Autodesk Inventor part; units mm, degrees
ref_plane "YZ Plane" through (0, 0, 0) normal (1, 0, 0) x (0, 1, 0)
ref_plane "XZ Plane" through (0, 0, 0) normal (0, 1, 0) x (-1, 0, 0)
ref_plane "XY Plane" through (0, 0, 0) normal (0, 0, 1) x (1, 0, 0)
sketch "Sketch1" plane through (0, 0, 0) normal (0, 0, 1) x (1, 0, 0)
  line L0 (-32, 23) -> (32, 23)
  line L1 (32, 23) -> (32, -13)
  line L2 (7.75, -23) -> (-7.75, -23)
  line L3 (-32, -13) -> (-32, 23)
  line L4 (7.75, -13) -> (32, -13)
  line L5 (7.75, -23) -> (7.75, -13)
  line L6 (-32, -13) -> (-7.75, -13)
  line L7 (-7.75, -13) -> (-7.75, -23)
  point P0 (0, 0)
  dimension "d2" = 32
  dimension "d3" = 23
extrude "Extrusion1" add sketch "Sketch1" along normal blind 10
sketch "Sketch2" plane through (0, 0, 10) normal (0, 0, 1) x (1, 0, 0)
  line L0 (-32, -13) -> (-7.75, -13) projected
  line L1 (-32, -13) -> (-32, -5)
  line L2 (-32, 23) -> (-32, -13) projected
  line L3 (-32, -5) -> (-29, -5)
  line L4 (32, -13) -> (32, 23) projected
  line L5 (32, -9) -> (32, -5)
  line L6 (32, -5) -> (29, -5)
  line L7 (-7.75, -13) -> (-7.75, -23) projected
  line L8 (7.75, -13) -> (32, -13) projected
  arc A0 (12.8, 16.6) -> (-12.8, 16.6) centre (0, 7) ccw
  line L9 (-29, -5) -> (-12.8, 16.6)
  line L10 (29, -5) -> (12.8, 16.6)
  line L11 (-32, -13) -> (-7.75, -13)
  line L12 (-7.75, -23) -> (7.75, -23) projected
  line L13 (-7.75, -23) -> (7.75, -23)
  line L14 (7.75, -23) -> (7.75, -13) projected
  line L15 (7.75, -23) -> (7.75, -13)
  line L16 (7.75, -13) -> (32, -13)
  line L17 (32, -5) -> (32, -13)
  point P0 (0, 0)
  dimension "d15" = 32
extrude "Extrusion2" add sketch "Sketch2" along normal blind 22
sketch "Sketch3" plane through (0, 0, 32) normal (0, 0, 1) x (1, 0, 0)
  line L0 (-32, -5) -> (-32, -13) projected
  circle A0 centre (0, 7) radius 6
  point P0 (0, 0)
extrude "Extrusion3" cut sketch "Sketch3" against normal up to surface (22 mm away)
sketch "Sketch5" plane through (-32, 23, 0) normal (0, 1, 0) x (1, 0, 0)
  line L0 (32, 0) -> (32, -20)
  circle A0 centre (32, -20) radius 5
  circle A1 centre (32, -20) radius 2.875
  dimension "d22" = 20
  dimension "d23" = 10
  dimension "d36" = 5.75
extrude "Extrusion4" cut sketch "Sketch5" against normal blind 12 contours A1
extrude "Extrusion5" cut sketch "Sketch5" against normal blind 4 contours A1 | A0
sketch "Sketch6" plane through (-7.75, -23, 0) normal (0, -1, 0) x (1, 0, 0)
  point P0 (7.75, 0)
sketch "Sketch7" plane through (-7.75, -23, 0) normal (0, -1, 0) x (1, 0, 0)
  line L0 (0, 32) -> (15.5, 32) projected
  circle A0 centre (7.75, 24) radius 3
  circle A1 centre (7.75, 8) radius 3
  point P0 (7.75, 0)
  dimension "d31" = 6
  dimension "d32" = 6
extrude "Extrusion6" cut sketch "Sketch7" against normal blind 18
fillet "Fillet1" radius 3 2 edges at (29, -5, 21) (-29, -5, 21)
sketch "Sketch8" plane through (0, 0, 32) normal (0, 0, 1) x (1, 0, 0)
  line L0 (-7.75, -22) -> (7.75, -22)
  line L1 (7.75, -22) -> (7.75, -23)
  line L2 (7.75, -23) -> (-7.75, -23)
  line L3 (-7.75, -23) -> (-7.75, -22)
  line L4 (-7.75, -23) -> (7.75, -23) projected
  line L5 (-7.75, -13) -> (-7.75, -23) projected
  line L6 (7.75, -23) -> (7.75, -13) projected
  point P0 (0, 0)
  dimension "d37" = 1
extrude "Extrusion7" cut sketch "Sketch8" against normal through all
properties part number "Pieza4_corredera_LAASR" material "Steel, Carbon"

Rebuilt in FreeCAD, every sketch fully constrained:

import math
import FreeCAD as App
import Part
import Sketcher

V = App.Vector


def edges_at(feature, points):
    """Names of the edges that pass closest to the given points."""
    edges = feature.Shape.Edges
    near = lambda p: min(range(len(edges)), key=lambda i: edges[i].distToShape(Part.Vertex(*p))[0])
    return sorted({f"Edge{near(p) + 1}" for p in points})

doc = App.newDocument("Part")
body = doc.addObject("PartDesign::Body", "Body")

# Sketch on XY plane
sketch1 = body.newObject("Sketcher::SketchObject", "Sketch")
sketch1.AttachmentSupport = (doc.getObject("XY_Plane"), [""])
sketch1.MapMode = "FlatFace"
sketch1.addGeometry(Part.LineSegment(V(32, 23, 0), V(-32, 23, 0)), False)
sketch1.addGeometry(Part.LineSegment(V(-32, 23, 0), V(-32, -13, 0)), False)
sketch1.addGeometry(Part.LineSegment(V(-32, -13, 0), V(-8, -13, 0)), False)
sketch1.addGeometry(Part.LineSegment(V(-8, -13, 0), V(-8, -23, 0)), False)
sketch1.addGeometry(Part.LineSegment(V(-8, -23, 0), V(8, -23, 0)), False)
sketch1.addGeometry(Part.LineSegment(V(8, -23, 0), V(8, -13, 0)), False)
sketch1.addGeometry(Part.LineSegment(V(8, -13, 0), V(32, -13, 0)), False)
sketch1.addGeometry(Part.LineSegment(V(32, -13, 0), V(32, 23, 0)), False)
sketch1.addConstraint(Sketcher.Constraint("Coincident", 0, 2, 1, 1))
sketch1.addConstraint(Sketcher.Constraint("Coincident", 1, 2, 2, 1))
sketch1.addConstraint(Sketcher.Constraint("Coincident", 2, 2, 3, 1))
sketch1.addConstraint(Sketcher.Constraint("Coincident", 3, 2, 4, 1))
sketch1.addConstraint(Sketcher.Constraint("Coincident", 4, 2, 5, 1))
sketch1.addConstraint(Sketcher.Constraint("Coincident", 5, 2, 6, 1))
sketch1.addConstraint(Sketcher.Constraint("Coincident", 6, 2, 7, 1))
sketch1.addConstraint(Sketcher.Constraint("Coincident", 7, 2, 0, 1))
sketch1.addConstraint(Sketcher.Constraint("Horizontal", 0))
sketch1.addConstraint(Sketcher.Constraint("Vertical", 1))
sketch1.addConstraint(Sketcher.Constraint("Horizontal", 2))
sketch1.addConstraint(Sketcher.Constraint("Vertical", 3))
sketch1.addConstraint(Sketcher.Constraint("Horizontal", 4))
sketch1.addConstraint(Sketcher.Constraint("Vertical", 5))
sketch1.addConstraint(Sketcher.Constraint("Horizontal", 6))
sketch1.addConstraint(Sketcher.Constraint("Vertical", 7))
sketch1.addConstraint(Sketcher.Constraint("Symmetric", 2, 2, 5, 2, -2))
sketch1.addConstraint(Sketcher.Constraint("Equal", 2, 6))
sketch1.addConstraint(Sketcher.Constraint("DistanceX", 0, 2, -1, 1, 32.0))
sketch1.addConstraint(Sketcher.Constraint("DistanceY", -1, 1, 0, 2, 23.0))
sketch1.addConstraint(Sketcher.Constraint("DistanceY", 3, 2, -1, 1, 23.0))
sketch1.addConstraint(Sketcher.Constraint("DistanceY", 1, 2, 1, 1, 36.0))
sketch1.addConstraint(Sketcher.Constraint("DistanceX", 4, 1, 4, 2, 15.5))
pad1 = body.newObject("PartDesign::Pad", "Pad")
pad1.Profile = sketch1
pad1.Length = 10

# Sketch on XY plane
sketch2 = body.newObject("Sketcher::SketchObject", "Sketch001")
sketch2.AttachmentSupport = (doc.getObject("XY_Plane"), [""])
sketch2.MapMode = "FlatFace"
sketch2.AttachmentOffset = App.Placement(V(0, 0, 10), App.Rotation())
sketch2.addGeometry(Part.LineSegment(V(-32, -5, 0), V(-32, -13, 0)), False)
sketch2.addGeometry(Part.LineSegment(V(-32, -13, 0), V(-7.8, -13, 0)), False)
sketch2.addGeometry(Part.LineSegment(V(-7.8, -13, 0), V(-7.8, -23, 0)), False)
sketch2.addGeometry(Part.LineSegment(V(-7.8, -23, 0), V(7.8, -23, 0)), False)
sketch2.addGeometry(Part.LineSegment(V(7.8, -23, 0), V(7.8, -13, 0)), False)
sketch2.addGeometry(Part.LineSegment(V(7.8, -13, 0), V(32, -13, 0)), False)
sketch2.addGeometry(Part.LineSegment(V(32, -13, 0), V(32, -5, 0)), False)
sketch2.addGeometry(Part.LineSegment(V(32, -5, 0), V(29, -5, 0)), False)
sketch2.addGeometry(Part.LineSegment(V(29, -5, 0), V(12.8, 16.6, 0)), False)
sketch2.addGeometry(Part.ArcOfCircle(Part.Circle(V(0, 7, 0), V(0, 0, 1), 16), math.radians(37), math.radians(143)), False)
sketch2.addGeometry(Part.LineSegment(V(-12.8, 16.6, 0), V(-29, -5, 0)), False)
sketch2.addGeometry(Part.LineSegment(V(-29, -5, 0), V(-32, -5, 0)), False)
sketch2.addConstraint(Sketcher.Constraint("Coincident", 0, 2, 1, 1))
sketch2.addConstraint(Sketcher.Constraint("Coincident", 1, 2, 2, 1))
sketch2.addConstraint(Sketcher.Constraint("Coincident", 2, 2, 3, 1))
sketch2.addConstraint(Sketcher.Constraint("Coincident", 3, 2, 4, 1))
sketch2.addConstraint(Sketcher.Constraint("Coincident", 4, 2, 5, 1))
sketch2.addConstraint(Sketcher.Constraint("Coincident", 5, 2, 6, 1))
sketch2.addConstraint(Sketcher.Constraint("Coincident", 6, 2, 7, 1))
sketch2.addConstraint(Sketcher.Constraint("Coincident", 7, 2, 8, 1))
sketch2.addConstraint(Sketcher.Constraint("Tangent", 8, 2, 9, 1))
sketch2.addConstraint(Sketcher.Constraint("Tangent", 9, 2, 10, 1))
sketch2.addConstraint(Sketcher.Constraint("Coincident", 10, 2, 11, 1))
sketch2.addConstraint(Sketcher.Constraint("Coincident", 11, 2, 0, 1))
sketch2.addConstraint(Sketcher.Constraint("Vertical", 0))
sketch2.addConstraint(Sketcher.Constraint("Horizontal", 1))
sketch2.addConstraint(Sketcher.Constraint("Vertical", 2))
sketch2.addConstraint(Sketcher.Constraint("Horizontal", 3))
sketch2.addConstraint(Sketcher.Constraint("Vertical", 4))
sketch2.addConstraint(Sketcher.Constraint("Horizontal", 5))
sketch2.addConstraint(Sketcher.Constraint("Vertical", 6))
sketch2.addConstraint(Sketcher.Constraint("Horizontal", 7))
sketch2.addConstraint(Sketcher.Constraint("Horizontal", 11))
sketch2.addConstraint(Sketcher.Constraint("Symmetric", 1, 2, 4, 2, -2))
sketch2.addConstraint(Sketcher.Constraint("Symmetric", 8, 2, 9, 2, -2))
sketch2.addConstraint(Sketcher.Constraint("Symmetric", 6, 2, 11, 2, -2))
sketch2.addConstraint(Sketcher.Constraint("Radius", 9, 16.0))
sketch2.addConstraint(Sketcher.Constraint("DistanceX", 0, 2, -1, 1, 32.0))
sketch2.addConstraint(Sketcher.Constraint("DistanceX", 7, 2, 7, 1, 3.0))
sketch2.addConstraint(Sketcher.Constraint("DistanceY", 0, 2, 0, 1, 8.0))
sketch2.addConstraint(Sketcher.Constraint("DistanceY", 2, 2, 2, 1, 10.0))
sketch2.addConstraint(Sketcher.Constraint("Distance", 8, 27.0))
sketch2.addConstraint(Sketcher.Constraint("DistanceX", 3, 1, 3, 2, 15.5))
sketch2.addConstraint(Sketcher.Constraint("DistanceY", -1, 1, 9, 3, 7.0))
pad2 = body.newObject("PartDesign::Pad", "Pad001")
pad2.Profile = sketch2
pad2.Length = 22

# Sketch on XY plane
sketch3 = body.newObject("Sketcher::SketchObject", "Sketch002")
sketch3.AttachmentSupport = (doc.getObject("XY_Plane"), [""])
sketch3.MapMode = "FlatFace"
sketch3.AttachmentOffset = App.Placement(V(0, 0, 32), App.Rotation())
sketch3.addGeometry(Part.Circle(V(0, 7, 0), V(0, 0, 1), 6), False)
sketch3.addConstraint(Sketcher.Constraint("PointOnObject", 0, 3, -2))
sketch3.addConstraint(Sketcher.Constraint("Diameter", 0, 12.0))
sketch3.addConstraint(Sketcher.Constraint("DistanceY", -1, 1, 0, 3, 7.0))
pocket1 = body.newObject("PartDesign::Pocket", "Pocket")
pocket1.Profile = sketch3
pocket1.Length = 22

# Sketch on XZ plane
sketch4 = body.newObject("Sketcher::SketchObject", "Sketch003")
sketch4.AttachmentSupport = (doc.getObject("XZ_Plane"), [""])
sketch4.MapMode = "FlatFace"
sketch4.AttachmentOffset = App.Placement(V(0, 0, -23), App.Rotation())
sketch4.addGeometry(Part.Circle(V(0, 20, 0), V(0, 0, 1), 2.9), False)
sketch4.addConstraint(Sketcher.Constraint("PointOnObject", 0, 3, -2))
sketch4.addConstraint(Sketcher.Constraint("Diameter", 0, 5.75))
sketch4.addConstraint(Sketcher.Constraint("DistanceY", -1, 1, 0, 3, 20.0))
pocket2 = body.newObject("PartDesign::Pocket", "Pocket001")
pocket2.Profile = sketch4
pocket2.Length = 12
pocket2.Reversed = True

# Sketch on XZ plane
sketch5 = body.newObject("Sketcher::SketchObject", "Sketch004")
sketch5.AttachmentSupport = (doc.getObject("XZ_Plane"), [""])
sketch5.MapMode = "FlatFace"
sketch5.AttachmentOffset = App.Placement(V(0, 0, -23), App.Rotation())
sketch5.addGeometry(Part.Circle(V(0, 20, 0), V(0, 0, 1), 5), False)
sketch5.addConstraint(Sketcher.Constraint("PointOnObject", 0, 3, -2))
sketch5.addConstraint(Sketcher.Constraint("Diameter", 0, 10.0))
sketch5.addConstraint(Sketcher.Constraint("DistanceY", -1, 1, 0, 3, 20.0))
pocket3 = body.newObject("PartDesign::Pocket", "Pocket002")
pocket3.Profile = sketch5
pocket3.Length = 4
pocket3.Reversed = True

# Sketch on XZ plane
sketch6 = body.newObject("Sketcher::SketchObject", "Sketch005")
sketch6.AttachmentSupport = (doc.getObject("XZ_Plane"), [""])
sketch6.MapMode = "FlatFace"
sketch6.AttachmentOffset = App.Placement(V(0, 0, 23), App.Rotation())
sketch6.addGeometry(Part.Circle(V(0, 24, 0), V(0, 0, 1), 3), False)
sketch6.addGeometry(Part.Circle(V(0, 8, 0), V(0, 0, 1), 3), False)
sketch6.addConstraint(Sketcher.Constraint("Equal", 0, 1))
sketch6.addConstraint(Sketcher.Constraint("PointOnObject", 0, 3, -2))
sketch6.addConstraint(Sketcher.Constraint("PointOnObject", 1, 3, -2))
sketch6.addConstraint(Sketcher.Constraint("Diameter", 0, 6.0))
sketch6.addConstraint(Sketcher.Constraint("DistanceY", -1, 1, 0, 3, 24.0))
sketch6.addConstraint(Sketcher.Constraint("DistanceY", -1, 1, 1, 3, 8.0))
pocket4 = body.newObject("PartDesign::Pocket", "Pocket003")
pocket4.Profile = sketch6
pocket4.Length = 18
doc.recompute()

fillet = body.newObject("PartDesign::Fillet", "Fillet")
fillet.Base = (pocket4, edges_at(pocket4, [(29, -5, 21), (-29, -5, 21)]))
fillet.Radius = 3

# Sketch on XY plane
sketch7 = body.newObject("Sketcher::SketchObject", "Sketch006")
sketch7.AttachmentSupport = (doc.getObject("XY_Plane"), [""])
sketch7.MapMode = "FlatFace"
sketch7.AttachmentOffset = App.Placement(V(0, 0, 32), App.Rotation())
sketch7.addGeometry(Part.LineSegment(V(7.8, -22, 0), V(-7.8, -22, 0)), False)
sketch7.addGeometry(Part.LineSegment(V(-7.8, -22, 0), V(-7.8, -23, 0)), False)
sketch7.addGeometry(Part.LineSegment(V(-7.8, -23, 0), V(7.8, -23, 0)), False)
sketch7.addGeometry(Part.LineSegment(V(7.8, -23, 0), V(7.8, -22, 0)), False)
sketch7.addConstraint(Sketcher.Constraint("Coincident", 0, 2, 1, 1))
sketch7.addConstraint(Sketcher.Constraint("Coincident", 1, 2, 2, 1))
sketch7.addConstraint(Sketcher.Constraint("Coincident", 2, 2, 3, 1))
sketch7.addConstraint(Sketcher.Constraint("Coincident", 3, 2, 0, 1))
sketch7.addConstraint(Sketcher.Constraint("Horizontal", 0))
sketch7.addConstraint(Sketcher.Constraint("Vertical", 1))
sketch7.addConstraint(Sketcher.Constraint("Horizontal", 2))
sketch7.addConstraint(Sketcher.Constraint("Vertical", 3))
sketch7.addConstraint(Sketcher.Constraint("DistanceY", 1, 2, 1, 1, 1.0))
sketch7.addConstraint(Sketcher.Constraint("DistanceX", 0, 2, 0, 1, 15.5))
sketch7.addConstraint(Sketcher.Constraint("DistanceY", 0, 2, -1, 1, 22.0))
sketch7.addConstraint(Sketcher.Constraint("DistanceX", 0, 2, -1, 1, 7.75))
pocket5 = body.newObject("PartDesign::Pocket", "Pocket004")
pocket5.Profile = sketch7
pocket5.Type = "ThroughAll"

doc.recompute()
